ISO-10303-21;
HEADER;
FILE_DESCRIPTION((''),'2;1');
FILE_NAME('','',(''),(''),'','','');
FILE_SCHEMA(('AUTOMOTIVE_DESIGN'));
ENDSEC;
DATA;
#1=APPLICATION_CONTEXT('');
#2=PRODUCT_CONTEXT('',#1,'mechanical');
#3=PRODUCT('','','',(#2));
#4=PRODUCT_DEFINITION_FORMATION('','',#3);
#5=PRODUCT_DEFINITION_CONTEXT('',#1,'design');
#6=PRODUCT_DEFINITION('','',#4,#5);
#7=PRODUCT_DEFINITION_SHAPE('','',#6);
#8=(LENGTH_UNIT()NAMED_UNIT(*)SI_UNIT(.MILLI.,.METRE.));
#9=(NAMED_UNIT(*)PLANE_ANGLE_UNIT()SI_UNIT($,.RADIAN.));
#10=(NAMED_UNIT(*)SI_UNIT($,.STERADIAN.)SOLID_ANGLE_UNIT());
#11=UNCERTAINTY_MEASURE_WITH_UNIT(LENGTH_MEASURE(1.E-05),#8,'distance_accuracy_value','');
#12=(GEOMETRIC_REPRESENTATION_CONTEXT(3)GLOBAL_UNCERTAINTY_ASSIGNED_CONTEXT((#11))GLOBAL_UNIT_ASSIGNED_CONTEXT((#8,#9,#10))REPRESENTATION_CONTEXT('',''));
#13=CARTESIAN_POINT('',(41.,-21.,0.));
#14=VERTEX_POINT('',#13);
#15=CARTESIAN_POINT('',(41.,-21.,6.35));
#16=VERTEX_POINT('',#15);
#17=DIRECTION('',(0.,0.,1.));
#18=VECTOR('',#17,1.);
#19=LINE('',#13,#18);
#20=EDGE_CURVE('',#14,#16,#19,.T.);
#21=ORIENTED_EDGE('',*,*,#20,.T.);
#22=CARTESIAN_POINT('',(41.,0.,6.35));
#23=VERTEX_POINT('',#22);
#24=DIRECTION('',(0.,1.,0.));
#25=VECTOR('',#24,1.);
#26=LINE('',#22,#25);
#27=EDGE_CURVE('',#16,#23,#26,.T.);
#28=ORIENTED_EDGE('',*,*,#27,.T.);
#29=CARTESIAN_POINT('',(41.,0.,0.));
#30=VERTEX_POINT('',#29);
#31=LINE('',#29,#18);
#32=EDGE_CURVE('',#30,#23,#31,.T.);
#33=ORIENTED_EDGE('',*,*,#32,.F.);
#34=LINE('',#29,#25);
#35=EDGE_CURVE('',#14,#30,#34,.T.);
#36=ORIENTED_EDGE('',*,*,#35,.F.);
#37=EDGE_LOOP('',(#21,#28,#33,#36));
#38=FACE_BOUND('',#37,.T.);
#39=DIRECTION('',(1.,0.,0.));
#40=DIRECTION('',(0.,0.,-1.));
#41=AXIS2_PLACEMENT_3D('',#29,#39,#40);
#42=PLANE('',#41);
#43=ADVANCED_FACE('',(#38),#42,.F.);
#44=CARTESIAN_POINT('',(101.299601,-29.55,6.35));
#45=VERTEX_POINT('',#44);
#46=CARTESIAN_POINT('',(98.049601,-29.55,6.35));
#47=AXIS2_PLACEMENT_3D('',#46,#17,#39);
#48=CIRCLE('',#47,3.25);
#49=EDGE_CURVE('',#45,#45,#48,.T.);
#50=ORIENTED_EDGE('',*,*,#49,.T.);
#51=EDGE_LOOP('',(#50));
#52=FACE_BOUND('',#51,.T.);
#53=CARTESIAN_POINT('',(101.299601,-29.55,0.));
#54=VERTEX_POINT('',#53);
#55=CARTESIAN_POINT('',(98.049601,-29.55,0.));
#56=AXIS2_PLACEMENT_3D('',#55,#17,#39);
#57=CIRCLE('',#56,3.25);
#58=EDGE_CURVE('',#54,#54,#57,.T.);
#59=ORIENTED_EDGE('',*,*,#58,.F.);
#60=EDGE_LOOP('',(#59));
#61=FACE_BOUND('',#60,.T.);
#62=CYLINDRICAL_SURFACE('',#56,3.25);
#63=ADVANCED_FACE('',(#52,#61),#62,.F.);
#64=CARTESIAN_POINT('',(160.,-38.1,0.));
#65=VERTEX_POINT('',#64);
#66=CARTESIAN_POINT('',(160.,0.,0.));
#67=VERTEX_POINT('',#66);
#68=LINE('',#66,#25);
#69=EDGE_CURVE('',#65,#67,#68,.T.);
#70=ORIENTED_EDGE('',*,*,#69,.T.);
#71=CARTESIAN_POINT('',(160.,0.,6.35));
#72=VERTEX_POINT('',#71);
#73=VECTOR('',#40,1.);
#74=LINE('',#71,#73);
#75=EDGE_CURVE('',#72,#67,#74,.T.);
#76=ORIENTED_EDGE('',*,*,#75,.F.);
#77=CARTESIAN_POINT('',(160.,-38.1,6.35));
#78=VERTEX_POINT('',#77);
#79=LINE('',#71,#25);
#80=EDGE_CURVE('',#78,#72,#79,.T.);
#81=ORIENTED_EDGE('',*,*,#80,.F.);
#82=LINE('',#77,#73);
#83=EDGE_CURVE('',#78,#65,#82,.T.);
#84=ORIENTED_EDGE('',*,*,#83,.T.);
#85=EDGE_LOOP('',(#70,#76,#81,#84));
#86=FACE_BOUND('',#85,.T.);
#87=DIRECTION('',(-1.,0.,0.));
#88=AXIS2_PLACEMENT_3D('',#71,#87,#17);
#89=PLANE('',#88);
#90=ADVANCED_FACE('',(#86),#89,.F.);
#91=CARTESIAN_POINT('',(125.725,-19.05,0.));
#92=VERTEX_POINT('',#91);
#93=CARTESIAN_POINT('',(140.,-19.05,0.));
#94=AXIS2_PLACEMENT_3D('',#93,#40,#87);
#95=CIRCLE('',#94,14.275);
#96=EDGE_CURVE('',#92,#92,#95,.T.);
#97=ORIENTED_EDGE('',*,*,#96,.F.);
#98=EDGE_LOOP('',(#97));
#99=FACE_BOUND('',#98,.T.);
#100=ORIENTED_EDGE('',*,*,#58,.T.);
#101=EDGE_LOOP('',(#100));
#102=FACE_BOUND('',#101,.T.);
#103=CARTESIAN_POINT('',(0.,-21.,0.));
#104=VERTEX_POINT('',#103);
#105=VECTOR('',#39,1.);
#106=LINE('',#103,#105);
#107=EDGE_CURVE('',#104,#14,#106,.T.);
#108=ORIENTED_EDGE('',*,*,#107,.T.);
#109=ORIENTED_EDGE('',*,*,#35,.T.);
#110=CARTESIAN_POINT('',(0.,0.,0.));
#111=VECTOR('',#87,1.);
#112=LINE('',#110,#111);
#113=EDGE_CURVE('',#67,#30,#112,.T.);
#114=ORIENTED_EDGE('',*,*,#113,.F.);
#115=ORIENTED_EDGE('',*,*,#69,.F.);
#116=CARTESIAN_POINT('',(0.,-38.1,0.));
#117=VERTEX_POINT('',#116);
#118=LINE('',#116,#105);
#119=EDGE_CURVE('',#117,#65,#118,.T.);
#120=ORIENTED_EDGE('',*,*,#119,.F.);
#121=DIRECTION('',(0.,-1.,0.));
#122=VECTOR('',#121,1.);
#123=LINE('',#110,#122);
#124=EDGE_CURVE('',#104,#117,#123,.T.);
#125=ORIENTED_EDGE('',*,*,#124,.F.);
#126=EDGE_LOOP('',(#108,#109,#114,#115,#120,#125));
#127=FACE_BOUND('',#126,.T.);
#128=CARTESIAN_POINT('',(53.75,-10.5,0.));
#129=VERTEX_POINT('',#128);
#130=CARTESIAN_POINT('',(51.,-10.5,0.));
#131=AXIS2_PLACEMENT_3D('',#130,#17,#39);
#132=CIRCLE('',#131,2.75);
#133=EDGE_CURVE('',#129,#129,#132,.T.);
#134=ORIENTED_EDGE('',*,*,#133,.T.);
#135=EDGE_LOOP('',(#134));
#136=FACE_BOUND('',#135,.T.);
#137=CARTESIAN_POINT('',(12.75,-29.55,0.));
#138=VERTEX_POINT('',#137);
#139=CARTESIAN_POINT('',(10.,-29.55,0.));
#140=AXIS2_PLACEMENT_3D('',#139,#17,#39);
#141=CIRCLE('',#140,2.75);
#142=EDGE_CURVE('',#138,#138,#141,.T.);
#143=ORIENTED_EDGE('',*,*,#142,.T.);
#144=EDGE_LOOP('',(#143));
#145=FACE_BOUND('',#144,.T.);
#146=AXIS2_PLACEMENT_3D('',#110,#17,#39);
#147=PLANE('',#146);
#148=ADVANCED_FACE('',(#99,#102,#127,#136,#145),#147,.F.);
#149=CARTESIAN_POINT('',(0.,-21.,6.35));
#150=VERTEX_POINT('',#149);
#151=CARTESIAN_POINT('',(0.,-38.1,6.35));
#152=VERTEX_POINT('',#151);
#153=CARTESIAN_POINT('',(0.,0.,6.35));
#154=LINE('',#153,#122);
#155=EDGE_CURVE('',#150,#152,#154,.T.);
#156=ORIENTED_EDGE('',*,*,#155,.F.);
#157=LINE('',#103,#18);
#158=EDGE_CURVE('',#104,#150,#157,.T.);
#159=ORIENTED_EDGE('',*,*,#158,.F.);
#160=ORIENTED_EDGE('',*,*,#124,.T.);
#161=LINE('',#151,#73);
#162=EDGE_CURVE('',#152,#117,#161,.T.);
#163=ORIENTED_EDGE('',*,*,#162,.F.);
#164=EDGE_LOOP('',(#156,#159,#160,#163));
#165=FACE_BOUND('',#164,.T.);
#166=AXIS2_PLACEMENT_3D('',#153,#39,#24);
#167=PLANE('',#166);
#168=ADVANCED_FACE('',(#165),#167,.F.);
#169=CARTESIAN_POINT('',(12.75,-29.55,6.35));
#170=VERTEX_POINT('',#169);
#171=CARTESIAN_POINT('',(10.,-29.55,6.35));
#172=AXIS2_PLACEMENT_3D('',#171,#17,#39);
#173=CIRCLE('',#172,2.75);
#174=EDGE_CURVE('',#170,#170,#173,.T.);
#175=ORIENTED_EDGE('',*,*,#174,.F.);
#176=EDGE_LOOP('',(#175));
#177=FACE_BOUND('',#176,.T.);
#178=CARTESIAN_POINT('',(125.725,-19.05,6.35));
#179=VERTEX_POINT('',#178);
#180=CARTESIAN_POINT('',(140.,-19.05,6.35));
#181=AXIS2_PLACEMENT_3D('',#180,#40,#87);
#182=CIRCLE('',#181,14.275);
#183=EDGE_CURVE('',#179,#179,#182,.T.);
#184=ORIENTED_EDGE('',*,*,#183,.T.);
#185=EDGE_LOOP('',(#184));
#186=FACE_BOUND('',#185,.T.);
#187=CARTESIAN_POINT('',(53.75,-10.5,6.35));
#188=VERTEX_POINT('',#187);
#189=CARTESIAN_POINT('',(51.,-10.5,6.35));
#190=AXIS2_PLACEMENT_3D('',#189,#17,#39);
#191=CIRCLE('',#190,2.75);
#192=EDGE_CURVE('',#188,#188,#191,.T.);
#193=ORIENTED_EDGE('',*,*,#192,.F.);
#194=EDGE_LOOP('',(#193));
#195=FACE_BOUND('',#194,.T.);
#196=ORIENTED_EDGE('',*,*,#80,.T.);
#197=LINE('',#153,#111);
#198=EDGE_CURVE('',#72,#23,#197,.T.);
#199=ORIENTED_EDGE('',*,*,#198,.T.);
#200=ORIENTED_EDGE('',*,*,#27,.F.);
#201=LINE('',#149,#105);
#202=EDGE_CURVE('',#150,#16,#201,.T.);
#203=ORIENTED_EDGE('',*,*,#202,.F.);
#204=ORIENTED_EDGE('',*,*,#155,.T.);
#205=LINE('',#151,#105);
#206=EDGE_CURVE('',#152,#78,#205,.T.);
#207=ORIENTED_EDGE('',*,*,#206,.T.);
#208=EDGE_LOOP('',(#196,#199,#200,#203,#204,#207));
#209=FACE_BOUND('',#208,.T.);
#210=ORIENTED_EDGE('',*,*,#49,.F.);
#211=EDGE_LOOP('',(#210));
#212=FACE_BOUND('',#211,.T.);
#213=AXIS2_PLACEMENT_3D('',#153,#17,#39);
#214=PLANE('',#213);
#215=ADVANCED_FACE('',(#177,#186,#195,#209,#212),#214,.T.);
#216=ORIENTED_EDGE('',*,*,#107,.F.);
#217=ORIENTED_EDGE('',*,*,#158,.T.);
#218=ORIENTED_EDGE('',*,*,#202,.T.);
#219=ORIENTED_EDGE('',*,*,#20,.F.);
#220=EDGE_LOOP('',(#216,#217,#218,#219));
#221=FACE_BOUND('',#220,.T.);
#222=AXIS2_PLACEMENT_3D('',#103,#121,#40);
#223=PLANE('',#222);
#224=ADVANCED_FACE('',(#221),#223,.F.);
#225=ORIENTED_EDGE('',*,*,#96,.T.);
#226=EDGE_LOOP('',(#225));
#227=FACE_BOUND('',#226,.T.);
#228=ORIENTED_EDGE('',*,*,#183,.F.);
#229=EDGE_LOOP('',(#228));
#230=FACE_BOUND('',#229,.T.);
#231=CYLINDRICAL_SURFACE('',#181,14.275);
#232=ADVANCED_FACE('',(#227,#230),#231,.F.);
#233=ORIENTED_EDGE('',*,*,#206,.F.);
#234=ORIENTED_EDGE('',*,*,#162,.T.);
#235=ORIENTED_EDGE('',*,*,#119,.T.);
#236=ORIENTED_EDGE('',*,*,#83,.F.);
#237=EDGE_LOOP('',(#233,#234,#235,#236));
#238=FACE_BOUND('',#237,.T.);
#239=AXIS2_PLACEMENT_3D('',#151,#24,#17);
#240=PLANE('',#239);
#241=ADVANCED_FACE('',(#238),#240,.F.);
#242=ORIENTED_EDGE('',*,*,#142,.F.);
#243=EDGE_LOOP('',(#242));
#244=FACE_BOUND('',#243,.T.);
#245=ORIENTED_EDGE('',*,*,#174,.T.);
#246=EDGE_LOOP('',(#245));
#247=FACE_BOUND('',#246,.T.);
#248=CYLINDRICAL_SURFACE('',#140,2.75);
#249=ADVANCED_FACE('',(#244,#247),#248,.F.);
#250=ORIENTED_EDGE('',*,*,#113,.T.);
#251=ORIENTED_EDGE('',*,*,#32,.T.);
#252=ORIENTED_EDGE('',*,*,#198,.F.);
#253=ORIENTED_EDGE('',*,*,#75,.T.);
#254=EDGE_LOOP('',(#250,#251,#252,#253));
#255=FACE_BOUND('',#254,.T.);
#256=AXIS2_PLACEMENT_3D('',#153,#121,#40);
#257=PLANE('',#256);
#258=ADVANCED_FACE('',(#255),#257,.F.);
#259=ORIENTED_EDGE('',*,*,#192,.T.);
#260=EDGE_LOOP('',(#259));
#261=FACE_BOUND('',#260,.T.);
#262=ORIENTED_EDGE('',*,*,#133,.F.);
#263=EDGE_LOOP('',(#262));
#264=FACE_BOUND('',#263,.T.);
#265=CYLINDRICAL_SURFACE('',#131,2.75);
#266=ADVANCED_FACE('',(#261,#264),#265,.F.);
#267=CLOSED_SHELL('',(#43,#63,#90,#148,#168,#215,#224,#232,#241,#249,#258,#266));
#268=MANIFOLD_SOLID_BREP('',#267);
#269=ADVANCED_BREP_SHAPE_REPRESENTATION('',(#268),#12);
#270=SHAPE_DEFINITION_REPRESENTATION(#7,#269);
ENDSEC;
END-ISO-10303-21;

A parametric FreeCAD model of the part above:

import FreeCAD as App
import Part
import Sketcher
from FreeCAD import Vector
Q = App.Units.Quantity


def add_polygon(sketch, points):
    """Adds a closed chain of lines whose ends are joined by coincident constraints."""
    first, n = sketch.GeometryCount, len(points)
    for a, b in zip(points, points[1:] + points[:1]):
        sketch.addGeometry(Part.LineSegment(App.Vector(*a, 0), App.Vector(*b, 0)), False)
    for i in range(n):
        sketch.addConstraint(Sketcher.Constraint("Coincident", first + i, 2, first + (i + 1) % n, 1))

doc = App.newDocument("Part")
body = doc.addObject("PartDesign::Body", "Body")

# Sketch on XY plane
sketch1 = body.newObject("Sketcher::SketchObject", "Sketch")
sketch1.AttachmentSupport = (doc.getObject("XY_Plane"), [""])
sketch1.MapMode = "FlatFace"
add_polygon(sketch1, [(0, 0), (0, -38), (160, -38), (160, 0)])  # lines 0-3
sketch1.addConstraint(Sketcher.Constraint("Vertical", 0))
sketch1.addConstraint(Sketcher.Constraint("Horizontal", 1))
sketch1.addConstraint(Sketcher.Constraint("Vertical", 2))
sketch1.addConstraint(Sketcher.Constraint("Horizontal", 3))
sketch1.addConstraint(Sketcher.Constraint("Coincident", 3, 2, -1, 1))
sketch1.addConstraint(Sketcher.Constraint("DistanceX", 1, 1, 1, 2, Q("160 mm")))
sketch1.addConstraint(Sketcher.Constraint("DistanceY", 0, 2, 0, 1, Q("38.1 mm")))
pad1 = body.newObject("PartDesign::Pad", "Pad")
pad1.Profile = sketch1
pad1.Length = 6.35

# Sketch on XY plane
sketch2 = body.newObject("Sketcher::SketchObject", "Sketch001")
sketch2.AttachmentSupport = (doc.getObject("XY_Plane"), [""])
sketch2.MapMode = "FlatFace"
sketch2.addGeometry(Part.Circle(Vector(140, -19, 0), Vector(0, 0, 1), 14), False)
sketch2.addConstraint(Sketcher.Constraint("Diameter", 0, Q("28.55 mm")))
sketch2.addConstraint(Sketcher.Constraint("DistanceX", -1, 1, 0, 3, Q("140 mm")))
sketch2.addConstraint(Sketcher.Constraint("DistanceY", 0, 3, -1, 1, Q("19.05 mm")))
pocket1 = body.newObject("PartDesign::Pocket", "Pocket")
pocket1.Profile = sketch2
pocket1.Type = "ThroughAll"
pocket1.Reversed = True

# Sketch on XY plane
sketch3 = body.newObject("Sketcher::SketchObject", "Sketch002")
sketch3.AttachmentSupport = (doc.getObject("XY_Plane"), [""])
sketch3.MapMode = "FlatFace"
sketch3.AttachmentOffset = App.Placement(Vector(0, 0, 6.35), App.Rotation())
add_polygon(sketch3, [(0, 0), (0, -21), (41, -21), (41, 0)])  # lines 0-3
sketch3.addConstraint(Sketcher.Constraint("Vertical", 0))
sketch3.addConstraint(Sketcher.Constraint("Horizontal", 1))
sketch3.addConstraint(Sketcher.Constraint("Vertical", 2))
sketch3.addConstraint(Sketcher.Constraint("Horizontal", 3))
sketch3.addConstraint(Sketcher.Constraint("Coincident", 3, 2, -1, 1))
sketch3.addConstraint(Sketcher.Constraint("DistanceX", 1, 1, 1, 2, Q("41 mm")))
sketch3.addConstraint(Sketcher.Constraint("DistanceY", 0, 2, 0, 1, Q("21 mm")))
pocket2 = body.newObject("PartDesign::Pocket", "Pocket001")
pocket2.Profile = sketch3
pocket2.Type = "ThroughAll"

# Sketch on XY plane
sketch4 = body.newObject("Sketcher::SketchObject", "Sketch003")
sketch4.AttachmentSupport = (doc.getObject("XY_Plane"), [""])
sketch4.MapMode = "FlatFace"
sketch4.AttachmentOffset = App.Placement(Vector(0, 0, 6.35), App.Rotation())
sketch4.addGeometry(Part.Circle(Vector(10, -29.6, 0), Vector(0, 0, 1), 2.8), False)
sketch4.addGeometry(Part.Circle(Vector(51, -10.5, 0), Vector(0, 0, 1), 2.8), False)
sketch4.addGeometry(Part.Circle(Vector(98, -29.6, 0), Vector(0, 0, 1), 3.2), False)
sketch4.addConstraint(Sketcher.Constraint("Equal", 0, 1))
sketch4.addConstraint(Sketcher.Constraint("Horizontal", 0, 3, 2, 3))
sketch4.addConstraint(Sketcher.Constraint("Diameter", 0, Q("5.5 mm")))
sketch4.addConstraint(Sketcher.Constraint("Diameter", 2, Q("6.5 mm")))
sketch4.addConstraint(Sketcher.Constraint("DistanceX", -1, 1, 0, 3, Q("10 mm")))
sketch4.addConstraint(Sketcher.Constraint("DistanceX", -1, 1, 1, 3, Q("51 mm")))
sketch4.addConstraint(Sketcher.Constraint("DistanceY", 1, 3, -1, 1, Q("10.5 mm")))
sketch4.addConstraint(Sketcher.Constraint("DistanceY", 0, 3, -1, 1, Q("29.55 mm")))
sketch4.addConstraint(Sketcher.Constraint("DistanceX", -1, 1, 2, 3, Q("98.049601 mm")))
pocket3 = body.newObject("PartDesign::Pocket", "Pocket002")
pocket3.Profile = sketch4
pocket3.Type = "ThroughAll"

doc.recompute()
